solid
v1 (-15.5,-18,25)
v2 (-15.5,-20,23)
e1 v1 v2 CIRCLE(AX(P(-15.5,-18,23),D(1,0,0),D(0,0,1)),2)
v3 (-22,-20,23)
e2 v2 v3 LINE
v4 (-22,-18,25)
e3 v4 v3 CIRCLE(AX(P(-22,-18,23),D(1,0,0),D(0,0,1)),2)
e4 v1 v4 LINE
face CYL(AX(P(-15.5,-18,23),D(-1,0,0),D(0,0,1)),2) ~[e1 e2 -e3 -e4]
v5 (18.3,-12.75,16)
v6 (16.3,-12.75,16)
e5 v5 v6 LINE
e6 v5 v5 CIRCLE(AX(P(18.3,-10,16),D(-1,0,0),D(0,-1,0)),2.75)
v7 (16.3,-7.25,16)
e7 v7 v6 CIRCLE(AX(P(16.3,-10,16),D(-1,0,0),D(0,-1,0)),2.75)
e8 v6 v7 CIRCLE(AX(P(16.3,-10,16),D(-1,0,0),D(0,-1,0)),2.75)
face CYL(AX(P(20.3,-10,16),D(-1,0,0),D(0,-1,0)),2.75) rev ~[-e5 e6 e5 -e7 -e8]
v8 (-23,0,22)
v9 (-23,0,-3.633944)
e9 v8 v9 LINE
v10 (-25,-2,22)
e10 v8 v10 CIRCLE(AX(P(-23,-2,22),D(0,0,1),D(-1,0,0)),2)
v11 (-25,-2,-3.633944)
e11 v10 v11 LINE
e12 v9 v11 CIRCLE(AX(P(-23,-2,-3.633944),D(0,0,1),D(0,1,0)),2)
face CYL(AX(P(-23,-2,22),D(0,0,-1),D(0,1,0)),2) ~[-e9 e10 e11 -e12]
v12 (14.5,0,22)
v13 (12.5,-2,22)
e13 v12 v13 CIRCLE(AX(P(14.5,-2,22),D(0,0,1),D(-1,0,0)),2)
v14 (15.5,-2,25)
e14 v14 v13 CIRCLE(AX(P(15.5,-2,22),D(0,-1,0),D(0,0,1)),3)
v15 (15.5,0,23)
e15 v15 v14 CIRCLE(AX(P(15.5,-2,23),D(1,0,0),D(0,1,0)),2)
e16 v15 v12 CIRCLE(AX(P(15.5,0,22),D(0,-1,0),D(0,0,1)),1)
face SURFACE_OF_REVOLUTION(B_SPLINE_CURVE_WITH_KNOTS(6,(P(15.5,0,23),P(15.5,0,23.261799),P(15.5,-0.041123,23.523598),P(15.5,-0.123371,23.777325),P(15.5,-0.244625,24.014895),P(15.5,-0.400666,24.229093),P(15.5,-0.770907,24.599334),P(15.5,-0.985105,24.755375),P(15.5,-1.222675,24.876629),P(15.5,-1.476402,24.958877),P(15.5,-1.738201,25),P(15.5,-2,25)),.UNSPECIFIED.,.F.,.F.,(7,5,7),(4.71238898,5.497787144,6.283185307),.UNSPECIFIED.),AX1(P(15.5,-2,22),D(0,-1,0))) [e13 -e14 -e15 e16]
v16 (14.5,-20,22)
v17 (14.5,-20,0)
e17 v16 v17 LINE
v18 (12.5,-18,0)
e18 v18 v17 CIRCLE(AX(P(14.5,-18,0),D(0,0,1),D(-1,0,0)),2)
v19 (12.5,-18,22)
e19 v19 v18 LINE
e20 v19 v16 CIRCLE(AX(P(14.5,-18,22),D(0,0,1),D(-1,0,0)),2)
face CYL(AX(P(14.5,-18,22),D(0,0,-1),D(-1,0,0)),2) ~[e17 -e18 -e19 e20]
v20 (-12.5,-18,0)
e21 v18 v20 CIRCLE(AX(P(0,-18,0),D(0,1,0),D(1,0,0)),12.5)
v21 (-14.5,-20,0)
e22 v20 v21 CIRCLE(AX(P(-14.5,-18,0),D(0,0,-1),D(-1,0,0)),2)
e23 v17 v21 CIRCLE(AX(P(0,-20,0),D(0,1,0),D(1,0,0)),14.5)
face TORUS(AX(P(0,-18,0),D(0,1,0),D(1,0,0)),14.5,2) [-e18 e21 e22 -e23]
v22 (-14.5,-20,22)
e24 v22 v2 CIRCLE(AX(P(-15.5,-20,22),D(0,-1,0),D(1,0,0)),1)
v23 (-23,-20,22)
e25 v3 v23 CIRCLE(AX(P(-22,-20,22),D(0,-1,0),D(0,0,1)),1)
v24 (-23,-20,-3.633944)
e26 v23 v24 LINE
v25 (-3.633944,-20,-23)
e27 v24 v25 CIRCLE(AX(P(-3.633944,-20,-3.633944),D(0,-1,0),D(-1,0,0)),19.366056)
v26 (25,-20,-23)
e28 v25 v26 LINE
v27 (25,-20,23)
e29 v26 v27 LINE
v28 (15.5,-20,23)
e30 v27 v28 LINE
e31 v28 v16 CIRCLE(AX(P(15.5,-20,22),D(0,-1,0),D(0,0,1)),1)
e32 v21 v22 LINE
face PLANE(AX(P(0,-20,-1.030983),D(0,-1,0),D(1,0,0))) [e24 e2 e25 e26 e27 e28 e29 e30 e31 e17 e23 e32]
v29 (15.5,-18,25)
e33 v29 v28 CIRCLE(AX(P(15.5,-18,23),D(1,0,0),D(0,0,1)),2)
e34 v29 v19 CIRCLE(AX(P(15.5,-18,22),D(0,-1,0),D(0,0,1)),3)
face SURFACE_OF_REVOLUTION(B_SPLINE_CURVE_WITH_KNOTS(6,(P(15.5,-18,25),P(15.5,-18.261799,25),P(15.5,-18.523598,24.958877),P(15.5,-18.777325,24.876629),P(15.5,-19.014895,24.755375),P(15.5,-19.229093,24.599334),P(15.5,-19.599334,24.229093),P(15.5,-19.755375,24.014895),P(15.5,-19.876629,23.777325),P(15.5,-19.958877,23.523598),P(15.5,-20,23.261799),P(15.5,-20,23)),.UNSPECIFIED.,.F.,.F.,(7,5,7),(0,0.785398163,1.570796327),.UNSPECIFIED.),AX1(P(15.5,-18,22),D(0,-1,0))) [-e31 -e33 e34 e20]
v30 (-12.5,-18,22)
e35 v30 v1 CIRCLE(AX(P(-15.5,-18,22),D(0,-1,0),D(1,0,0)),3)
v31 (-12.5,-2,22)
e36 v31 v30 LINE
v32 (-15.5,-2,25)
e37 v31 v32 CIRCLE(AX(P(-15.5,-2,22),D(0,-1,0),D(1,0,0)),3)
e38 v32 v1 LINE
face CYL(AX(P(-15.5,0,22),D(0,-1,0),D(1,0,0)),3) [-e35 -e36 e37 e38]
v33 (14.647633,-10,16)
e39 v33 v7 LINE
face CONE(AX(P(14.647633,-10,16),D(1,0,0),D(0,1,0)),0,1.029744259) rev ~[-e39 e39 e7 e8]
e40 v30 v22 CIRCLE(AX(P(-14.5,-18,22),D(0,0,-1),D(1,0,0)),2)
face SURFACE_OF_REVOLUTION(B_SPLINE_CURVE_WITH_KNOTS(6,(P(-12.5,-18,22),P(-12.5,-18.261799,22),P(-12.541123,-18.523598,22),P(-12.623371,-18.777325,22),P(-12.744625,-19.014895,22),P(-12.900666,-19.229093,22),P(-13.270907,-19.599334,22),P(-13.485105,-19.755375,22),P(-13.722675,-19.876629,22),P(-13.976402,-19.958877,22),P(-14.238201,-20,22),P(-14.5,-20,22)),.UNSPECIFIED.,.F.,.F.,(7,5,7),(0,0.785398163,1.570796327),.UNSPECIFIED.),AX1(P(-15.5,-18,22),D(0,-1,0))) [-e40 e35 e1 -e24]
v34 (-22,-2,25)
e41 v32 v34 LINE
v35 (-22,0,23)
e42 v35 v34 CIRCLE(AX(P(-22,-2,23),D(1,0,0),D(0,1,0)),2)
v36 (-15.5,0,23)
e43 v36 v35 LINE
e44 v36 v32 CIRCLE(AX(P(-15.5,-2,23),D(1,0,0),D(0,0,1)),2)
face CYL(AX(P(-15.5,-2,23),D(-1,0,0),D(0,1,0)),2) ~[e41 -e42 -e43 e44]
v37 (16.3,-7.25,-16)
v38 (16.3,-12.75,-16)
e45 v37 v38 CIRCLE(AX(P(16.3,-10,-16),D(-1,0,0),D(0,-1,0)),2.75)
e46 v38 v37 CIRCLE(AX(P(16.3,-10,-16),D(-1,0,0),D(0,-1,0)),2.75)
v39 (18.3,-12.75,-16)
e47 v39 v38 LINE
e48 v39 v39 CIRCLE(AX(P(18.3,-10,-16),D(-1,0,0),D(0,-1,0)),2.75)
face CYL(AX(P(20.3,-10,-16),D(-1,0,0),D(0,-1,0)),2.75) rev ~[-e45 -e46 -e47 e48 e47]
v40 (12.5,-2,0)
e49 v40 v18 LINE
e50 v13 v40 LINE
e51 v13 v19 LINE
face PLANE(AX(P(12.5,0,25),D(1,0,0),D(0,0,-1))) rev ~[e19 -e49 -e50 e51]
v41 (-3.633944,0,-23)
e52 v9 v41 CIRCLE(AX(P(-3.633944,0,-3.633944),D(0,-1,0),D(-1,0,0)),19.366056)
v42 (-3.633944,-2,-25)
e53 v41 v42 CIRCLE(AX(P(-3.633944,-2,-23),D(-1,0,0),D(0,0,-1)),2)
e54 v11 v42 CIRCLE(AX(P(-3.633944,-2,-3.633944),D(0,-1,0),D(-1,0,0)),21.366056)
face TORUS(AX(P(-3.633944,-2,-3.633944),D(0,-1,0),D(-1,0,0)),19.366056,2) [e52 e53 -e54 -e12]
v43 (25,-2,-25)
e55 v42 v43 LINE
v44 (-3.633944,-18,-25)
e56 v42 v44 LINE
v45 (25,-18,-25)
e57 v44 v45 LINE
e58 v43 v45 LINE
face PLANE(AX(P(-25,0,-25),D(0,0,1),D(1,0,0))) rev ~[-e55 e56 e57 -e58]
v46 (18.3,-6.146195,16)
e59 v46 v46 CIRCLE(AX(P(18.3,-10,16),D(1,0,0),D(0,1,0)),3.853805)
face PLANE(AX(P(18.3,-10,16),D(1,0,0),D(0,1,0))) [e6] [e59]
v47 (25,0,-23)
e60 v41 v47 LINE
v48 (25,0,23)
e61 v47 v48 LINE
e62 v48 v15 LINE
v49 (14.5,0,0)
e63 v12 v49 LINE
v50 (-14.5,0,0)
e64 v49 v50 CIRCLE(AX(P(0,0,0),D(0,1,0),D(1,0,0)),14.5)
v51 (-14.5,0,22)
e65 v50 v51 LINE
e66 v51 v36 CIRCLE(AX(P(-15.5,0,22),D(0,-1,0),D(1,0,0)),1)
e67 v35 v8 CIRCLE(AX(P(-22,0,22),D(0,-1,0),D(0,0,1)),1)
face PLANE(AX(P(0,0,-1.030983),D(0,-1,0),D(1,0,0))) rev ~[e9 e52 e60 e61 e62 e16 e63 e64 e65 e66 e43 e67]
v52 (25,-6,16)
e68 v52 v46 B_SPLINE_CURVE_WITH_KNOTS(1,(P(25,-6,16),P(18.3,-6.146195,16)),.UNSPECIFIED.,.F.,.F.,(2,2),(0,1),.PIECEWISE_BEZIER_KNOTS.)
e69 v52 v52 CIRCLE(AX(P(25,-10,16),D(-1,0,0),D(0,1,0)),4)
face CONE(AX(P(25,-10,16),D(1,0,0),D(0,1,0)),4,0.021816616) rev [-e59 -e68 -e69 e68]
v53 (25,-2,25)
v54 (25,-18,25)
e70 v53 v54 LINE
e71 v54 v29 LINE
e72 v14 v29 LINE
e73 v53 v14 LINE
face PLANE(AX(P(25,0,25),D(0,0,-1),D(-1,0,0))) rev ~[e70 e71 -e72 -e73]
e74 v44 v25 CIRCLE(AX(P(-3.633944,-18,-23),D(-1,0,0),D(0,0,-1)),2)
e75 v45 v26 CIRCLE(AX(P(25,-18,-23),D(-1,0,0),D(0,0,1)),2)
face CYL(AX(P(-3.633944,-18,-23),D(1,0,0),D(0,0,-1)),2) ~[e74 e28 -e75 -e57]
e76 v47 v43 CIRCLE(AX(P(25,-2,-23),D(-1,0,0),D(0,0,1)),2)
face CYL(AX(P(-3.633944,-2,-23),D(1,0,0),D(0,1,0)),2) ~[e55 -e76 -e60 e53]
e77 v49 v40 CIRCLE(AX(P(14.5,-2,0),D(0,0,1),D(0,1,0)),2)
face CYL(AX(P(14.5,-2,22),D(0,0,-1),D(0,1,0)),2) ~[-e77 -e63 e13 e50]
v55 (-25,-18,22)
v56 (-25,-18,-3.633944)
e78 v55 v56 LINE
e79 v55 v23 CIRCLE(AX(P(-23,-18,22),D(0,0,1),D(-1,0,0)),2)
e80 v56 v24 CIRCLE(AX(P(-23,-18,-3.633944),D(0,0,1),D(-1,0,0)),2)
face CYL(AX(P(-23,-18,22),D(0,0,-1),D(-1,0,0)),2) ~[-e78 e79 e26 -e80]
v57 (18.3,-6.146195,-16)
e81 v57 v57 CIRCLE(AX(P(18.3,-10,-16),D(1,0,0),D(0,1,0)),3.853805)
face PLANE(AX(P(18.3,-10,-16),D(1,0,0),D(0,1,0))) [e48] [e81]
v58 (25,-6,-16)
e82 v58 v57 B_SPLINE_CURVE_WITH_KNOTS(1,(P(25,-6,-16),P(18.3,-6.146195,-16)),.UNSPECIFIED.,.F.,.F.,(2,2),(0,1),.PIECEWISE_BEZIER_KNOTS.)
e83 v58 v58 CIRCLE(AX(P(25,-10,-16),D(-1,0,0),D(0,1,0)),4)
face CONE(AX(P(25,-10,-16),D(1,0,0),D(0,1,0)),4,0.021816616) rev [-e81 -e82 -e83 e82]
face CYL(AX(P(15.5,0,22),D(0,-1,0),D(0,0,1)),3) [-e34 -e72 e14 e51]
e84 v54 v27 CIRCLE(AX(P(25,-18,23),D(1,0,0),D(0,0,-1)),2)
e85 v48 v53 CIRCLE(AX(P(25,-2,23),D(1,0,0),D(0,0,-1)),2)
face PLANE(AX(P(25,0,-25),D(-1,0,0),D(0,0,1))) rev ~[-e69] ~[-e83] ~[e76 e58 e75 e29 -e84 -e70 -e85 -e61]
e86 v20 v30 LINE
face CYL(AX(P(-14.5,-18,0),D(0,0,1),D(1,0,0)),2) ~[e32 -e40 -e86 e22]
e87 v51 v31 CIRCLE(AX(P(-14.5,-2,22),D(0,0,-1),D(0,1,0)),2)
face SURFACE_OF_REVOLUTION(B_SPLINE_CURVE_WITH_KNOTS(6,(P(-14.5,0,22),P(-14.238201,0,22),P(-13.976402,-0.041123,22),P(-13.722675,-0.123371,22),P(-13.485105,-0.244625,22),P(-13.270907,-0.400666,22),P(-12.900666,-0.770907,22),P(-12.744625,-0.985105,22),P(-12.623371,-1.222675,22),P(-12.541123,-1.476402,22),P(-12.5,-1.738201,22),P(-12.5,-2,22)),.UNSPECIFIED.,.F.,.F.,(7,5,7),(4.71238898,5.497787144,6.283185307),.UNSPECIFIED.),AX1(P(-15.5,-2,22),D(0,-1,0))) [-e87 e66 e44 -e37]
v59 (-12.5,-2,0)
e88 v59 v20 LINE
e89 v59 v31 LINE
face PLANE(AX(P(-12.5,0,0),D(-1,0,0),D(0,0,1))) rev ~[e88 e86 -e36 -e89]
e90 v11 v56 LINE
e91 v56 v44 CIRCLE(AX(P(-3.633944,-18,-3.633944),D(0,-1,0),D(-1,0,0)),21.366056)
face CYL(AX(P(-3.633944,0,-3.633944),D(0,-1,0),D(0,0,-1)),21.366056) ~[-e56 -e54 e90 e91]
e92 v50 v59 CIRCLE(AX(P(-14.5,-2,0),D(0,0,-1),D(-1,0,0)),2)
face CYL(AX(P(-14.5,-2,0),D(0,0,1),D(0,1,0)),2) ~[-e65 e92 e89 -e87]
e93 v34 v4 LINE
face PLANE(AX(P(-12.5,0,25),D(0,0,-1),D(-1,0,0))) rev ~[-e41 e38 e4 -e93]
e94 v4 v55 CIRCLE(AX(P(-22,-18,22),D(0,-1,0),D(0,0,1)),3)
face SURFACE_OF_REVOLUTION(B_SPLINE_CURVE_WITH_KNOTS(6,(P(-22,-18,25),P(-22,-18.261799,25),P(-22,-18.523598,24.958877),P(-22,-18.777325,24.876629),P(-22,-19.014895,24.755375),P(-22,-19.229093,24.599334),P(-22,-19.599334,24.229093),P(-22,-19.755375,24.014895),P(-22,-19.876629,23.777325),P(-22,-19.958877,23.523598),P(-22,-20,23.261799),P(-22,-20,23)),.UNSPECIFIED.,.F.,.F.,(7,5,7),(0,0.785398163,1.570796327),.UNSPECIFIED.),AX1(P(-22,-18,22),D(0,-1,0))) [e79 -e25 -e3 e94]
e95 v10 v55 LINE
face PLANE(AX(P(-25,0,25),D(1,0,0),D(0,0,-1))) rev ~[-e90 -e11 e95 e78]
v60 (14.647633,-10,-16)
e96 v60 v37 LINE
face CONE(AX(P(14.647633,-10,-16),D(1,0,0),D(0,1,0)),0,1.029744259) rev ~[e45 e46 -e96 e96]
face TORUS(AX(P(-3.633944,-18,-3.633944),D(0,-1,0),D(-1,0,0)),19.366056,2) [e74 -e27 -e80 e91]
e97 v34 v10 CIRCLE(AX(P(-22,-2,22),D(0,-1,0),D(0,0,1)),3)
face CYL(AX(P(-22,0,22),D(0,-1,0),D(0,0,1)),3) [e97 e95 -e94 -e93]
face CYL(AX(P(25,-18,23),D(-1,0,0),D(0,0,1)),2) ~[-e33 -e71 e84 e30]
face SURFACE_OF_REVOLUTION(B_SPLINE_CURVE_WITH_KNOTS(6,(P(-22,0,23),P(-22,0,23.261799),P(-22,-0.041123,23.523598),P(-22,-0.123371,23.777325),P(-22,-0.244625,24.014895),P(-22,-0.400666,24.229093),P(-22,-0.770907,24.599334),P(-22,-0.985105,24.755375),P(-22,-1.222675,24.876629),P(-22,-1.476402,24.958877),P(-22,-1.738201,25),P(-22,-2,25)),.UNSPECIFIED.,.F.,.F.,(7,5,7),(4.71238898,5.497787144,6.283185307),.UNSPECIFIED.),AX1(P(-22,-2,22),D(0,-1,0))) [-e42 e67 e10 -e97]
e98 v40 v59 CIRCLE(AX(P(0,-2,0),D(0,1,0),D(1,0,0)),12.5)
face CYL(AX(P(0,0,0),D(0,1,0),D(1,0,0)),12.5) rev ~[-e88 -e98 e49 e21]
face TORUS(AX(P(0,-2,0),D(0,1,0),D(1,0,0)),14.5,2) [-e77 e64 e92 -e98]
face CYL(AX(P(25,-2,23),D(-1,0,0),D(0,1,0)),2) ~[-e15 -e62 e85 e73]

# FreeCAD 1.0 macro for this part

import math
import FreeCAD as App
import Part
import Sketcher
from FreeCAD import Vector


def edges_at(feature, points):
    """Names of the edges that pass closest to the given points."""
    edges = feature.Shape.Edges
    near = lambda p: min(range(len(edges)), key=lambda i: edges[i].distToShape(Part.Vertex(*p))[0])
    return sorted({f"Edge{near(p) + 1}" for p in points})

doc = App.newDocument("Part")
body = doc.addObject("PartDesign::Body", "Body")

# Sketch on XZ plane
sketch1 = body.newObject("Sketcher::SketchObject", "Sketch")
sketch1.AttachmentSupport = (doc.getObject("XZ_Plane"), [""])
sketch1.MapMode = "FlatFace"
sketch1.addGeometry([
    Part.LineSegment(Vector(-25, -25, 0), Vector(25, -25, 0)),  # 0
    Part.LineSegment(Vector(25, -25, 0), Vector(25, 25, 0)),  # 1
    Part.LineSegment(Vector(25, 25, 0), Vector(12, 25, 0)),  # 2
    Part.LineSegment(Vector(12, 25, 0), Vector(12, 0, 0)),  # 3
    Part.ArcOfCircle(Part.Circle(Vector(0, 0, 0), Vector(0, 0, 1), 12), math.radians(180), math.radians(360)),  # 4
    Part.LineSegment(Vector(-12, 0, 0), Vector(-12, 25, 0)),  # 5
    Part.LineSegment(Vector(-12, 25, 0), Vector(-25, 25, 0)),  # 6
    Part.LineSegment(Vector(-25, 25, 0), Vector(-25, -25, 0)),  # 7
], False)
sketch1.addConstraint([
    Sketcher.Constraint("Coincident", 0, 2, 1, 1),
    Sketcher.Constraint("Coincident", 1, 2, 2, 1),
    Sketcher.Constraint("Coincident", 2, 2, 3, 1),
    Sketcher.Constraint("Tangent", 3, 2, 4, 2),
    Sketcher.Constraint("Tangent", 4, 1, 5, 1),
    Sketcher.Constraint("Coincident", 5, 2, 6, 1),
    Sketcher.Constraint("Coincident", 6, 2, 7, 1),
    Sketcher.Constraint("Coincident", 7, 2, 0, 1),
    Sketcher.Constraint("Horizontal", 0),
    Sketcher.Constraint("Vertical", 1),
    Sketcher.Constraint("Horizontal", 2),
    Sketcher.Constraint("Vertical", 3),
    Sketcher.Constraint("Vertical", 5),
    Sketcher.Constraint("Horizontal", 6),
    Sketcher.Constraint("Vertical", 7),
    Sketcher.Constraint("Coincident", 4, 3, -1, 1),
    Sketcher.Constraint("Symmetric", 0, 2, 6, 2, -1, 1),
    Sketcher.Constraint("Horizontal", 2, 2, 5, 2),
    Sketcher.Constraint("Equal", 0, 1),
    Sketcher.Constraint("Radius", 4, 12.5),
    Sketcher.Constraint("DistanceX", 0, 1, 0, 2, 50.0),
])
pad1 = body.newObject("PartDesign::Pad", "Pad")
pad1.Profile = sketch1
pad1.Length = 20
doc.recompute()

fillet = body.newObject("PartDesign::Fillet", "Fillet")
fillet.Base = (pad1, edges_at(pad1, [(12.5, -10, 25), (-12.5, -10, 25), (-25, -10, 25)]))
fillet.Radius = 3
doc.recompute()

fillet2 = body.newObject("PartDesign::Fillet", "Fillet001")
fillet2.Base = (fillet, edges_at(fillet, [(-25, -10, -25)]))
fillet2.Radius = 21.366056

# Sketch on YZ plane
sketch2 = body.newObject("Sketcher::SketchObject", "Sketch001")
sketch2.AttachmentSupport = (doc.getObject("YZ_Plane"), [""])
sketch2.MapMode = "FlatFace"
sketch2.AttachmentOffset = App.Placement(Vector(0, 0, 25), App.Rotation())
sketch2.addGeometry([
    Part.Circle(Vector(-10, 16, 0), Vector(0, 0, 1), 4),
    Part.Circle(Vector(-10, -16, 0), Vector(0, 0, 1), 4),
], False)
sketch2.addConstraint([
    Sketcher.Constraint("Equal", 0, 1),
    Sketcher.Constraint("Symmetric", 0, 3, 1, 3, -1),
    Sketcher.Constraint("Diameter", 0, 8.0),
    Sketcher.Constraint("DistanceX", 0, 3, -1, 1, 10.0),
    Sketcher.Constraint("DistanceY", -1, 1, 0, 3, 16.0),
])
pocket1 = body.newObject("PartDesign::Pocket", "Pocket")
pocket1.Profile = sketch2
pocket1.Length = 6.7
pocket1.TaperAngle = -1.25

# Sketch on YZ plane
sketch3 = body.newObject("Sketcher::SketchObject", "Sketch002")
sketch3.AttachmentSupport = (doc.getObject("YZ_Plane"), [""])
sketch3.MapMode = "FlatFace"
sketch3.AttachmentOffset = App.Placement(Vector(0, 0, 25), App.Rotation())
sketch3.addGeometry([
    Part.Circle(Vector(-10, 16, 0), Vector(0, 0, 1), 2.8),
    Part.Circle(Vector(-10, -16, 0), Vector(0, 0, 1), 2.8),
], False)
sketch3.addConstraint([
    Sketcher.Constraint("Equal", 0, 1),
    Sketcher.Constraint("Symmetric", 0, 3, 1, 3, -1),
    Sketcher.Constraint("Diameter", 0, 5.5),
    Sketcher.Constraint("DistanceX", 0, 3, -1, 1, 10.0),
    Sketcher.Constraint("DistanceY", -1, 1, 0, 3, 16.0),
])
doc.recompute()
hole = body.newObject("PartDesign::Hole", "Hole")
hole.Profile = sketch3
hole.ThreadType = "None"
hole.Diameter = 5.5
hole.DepthType = "Dimension"
hole.Depth = 6.7
hole.DrillPoint = "Flat"

# Sketch on YZ plane
sketch4 = body.newObject("Sketcher::SketchObject", "Sketch003")
sketch4.AttachmentSupport = (doc.getObject("YZ_Plane"), [""])
sketch4.MapMode = "FlatFace"
sketch4.AttachmentOffset = App.Placement(Vector(0, 0, 18.3), App.Rotation())
sketch4.addGeometry([
    Part.Circle(Vector(-10, 16, 0), Vector(0, 0, 1), 2.8),
    Part.Circle(Vector(-10, -16, 0), Vector(0, 0, 1), 2.8),
], False)
sketch4.addConstraint([
    Sketcher.Constraint("Equal", 0, 1),
    Sketcher.Constraint("Symmetric", 0, 3, 1, 3, -1),
    Sketcher.Constraint("Diameter", 0, 5.5),
    Sketcher.Constraint("DistanceX", 0, 3, -1, 1, 10.0),
    Sketcher.Constraint("DistanceY", -1, 1, 0, 3, 16.0),
])
doc.recompute()
hole2 = body.newObject("PartDesign::Hole", "Hole001")
hole2.Profile = sketch4
hole2.ThreadType = "None"
hole2.Diameter = 5.5
hole2.DepthType = "Dimension"
hole2.Depth = 2
hole2.DrillPoint = "Angled"
hole2.DrillPointAngle = 118
doc.recompute()

fillet3 = body.newObject("PartDesign::Fillet", "Fillet002")
fillet3.Base = (hole2, edges_at(hole2, [(20.25, 0, 25), (20.25, -20, 25)]))
fillet3.Radius = 2

doc.recompute()
